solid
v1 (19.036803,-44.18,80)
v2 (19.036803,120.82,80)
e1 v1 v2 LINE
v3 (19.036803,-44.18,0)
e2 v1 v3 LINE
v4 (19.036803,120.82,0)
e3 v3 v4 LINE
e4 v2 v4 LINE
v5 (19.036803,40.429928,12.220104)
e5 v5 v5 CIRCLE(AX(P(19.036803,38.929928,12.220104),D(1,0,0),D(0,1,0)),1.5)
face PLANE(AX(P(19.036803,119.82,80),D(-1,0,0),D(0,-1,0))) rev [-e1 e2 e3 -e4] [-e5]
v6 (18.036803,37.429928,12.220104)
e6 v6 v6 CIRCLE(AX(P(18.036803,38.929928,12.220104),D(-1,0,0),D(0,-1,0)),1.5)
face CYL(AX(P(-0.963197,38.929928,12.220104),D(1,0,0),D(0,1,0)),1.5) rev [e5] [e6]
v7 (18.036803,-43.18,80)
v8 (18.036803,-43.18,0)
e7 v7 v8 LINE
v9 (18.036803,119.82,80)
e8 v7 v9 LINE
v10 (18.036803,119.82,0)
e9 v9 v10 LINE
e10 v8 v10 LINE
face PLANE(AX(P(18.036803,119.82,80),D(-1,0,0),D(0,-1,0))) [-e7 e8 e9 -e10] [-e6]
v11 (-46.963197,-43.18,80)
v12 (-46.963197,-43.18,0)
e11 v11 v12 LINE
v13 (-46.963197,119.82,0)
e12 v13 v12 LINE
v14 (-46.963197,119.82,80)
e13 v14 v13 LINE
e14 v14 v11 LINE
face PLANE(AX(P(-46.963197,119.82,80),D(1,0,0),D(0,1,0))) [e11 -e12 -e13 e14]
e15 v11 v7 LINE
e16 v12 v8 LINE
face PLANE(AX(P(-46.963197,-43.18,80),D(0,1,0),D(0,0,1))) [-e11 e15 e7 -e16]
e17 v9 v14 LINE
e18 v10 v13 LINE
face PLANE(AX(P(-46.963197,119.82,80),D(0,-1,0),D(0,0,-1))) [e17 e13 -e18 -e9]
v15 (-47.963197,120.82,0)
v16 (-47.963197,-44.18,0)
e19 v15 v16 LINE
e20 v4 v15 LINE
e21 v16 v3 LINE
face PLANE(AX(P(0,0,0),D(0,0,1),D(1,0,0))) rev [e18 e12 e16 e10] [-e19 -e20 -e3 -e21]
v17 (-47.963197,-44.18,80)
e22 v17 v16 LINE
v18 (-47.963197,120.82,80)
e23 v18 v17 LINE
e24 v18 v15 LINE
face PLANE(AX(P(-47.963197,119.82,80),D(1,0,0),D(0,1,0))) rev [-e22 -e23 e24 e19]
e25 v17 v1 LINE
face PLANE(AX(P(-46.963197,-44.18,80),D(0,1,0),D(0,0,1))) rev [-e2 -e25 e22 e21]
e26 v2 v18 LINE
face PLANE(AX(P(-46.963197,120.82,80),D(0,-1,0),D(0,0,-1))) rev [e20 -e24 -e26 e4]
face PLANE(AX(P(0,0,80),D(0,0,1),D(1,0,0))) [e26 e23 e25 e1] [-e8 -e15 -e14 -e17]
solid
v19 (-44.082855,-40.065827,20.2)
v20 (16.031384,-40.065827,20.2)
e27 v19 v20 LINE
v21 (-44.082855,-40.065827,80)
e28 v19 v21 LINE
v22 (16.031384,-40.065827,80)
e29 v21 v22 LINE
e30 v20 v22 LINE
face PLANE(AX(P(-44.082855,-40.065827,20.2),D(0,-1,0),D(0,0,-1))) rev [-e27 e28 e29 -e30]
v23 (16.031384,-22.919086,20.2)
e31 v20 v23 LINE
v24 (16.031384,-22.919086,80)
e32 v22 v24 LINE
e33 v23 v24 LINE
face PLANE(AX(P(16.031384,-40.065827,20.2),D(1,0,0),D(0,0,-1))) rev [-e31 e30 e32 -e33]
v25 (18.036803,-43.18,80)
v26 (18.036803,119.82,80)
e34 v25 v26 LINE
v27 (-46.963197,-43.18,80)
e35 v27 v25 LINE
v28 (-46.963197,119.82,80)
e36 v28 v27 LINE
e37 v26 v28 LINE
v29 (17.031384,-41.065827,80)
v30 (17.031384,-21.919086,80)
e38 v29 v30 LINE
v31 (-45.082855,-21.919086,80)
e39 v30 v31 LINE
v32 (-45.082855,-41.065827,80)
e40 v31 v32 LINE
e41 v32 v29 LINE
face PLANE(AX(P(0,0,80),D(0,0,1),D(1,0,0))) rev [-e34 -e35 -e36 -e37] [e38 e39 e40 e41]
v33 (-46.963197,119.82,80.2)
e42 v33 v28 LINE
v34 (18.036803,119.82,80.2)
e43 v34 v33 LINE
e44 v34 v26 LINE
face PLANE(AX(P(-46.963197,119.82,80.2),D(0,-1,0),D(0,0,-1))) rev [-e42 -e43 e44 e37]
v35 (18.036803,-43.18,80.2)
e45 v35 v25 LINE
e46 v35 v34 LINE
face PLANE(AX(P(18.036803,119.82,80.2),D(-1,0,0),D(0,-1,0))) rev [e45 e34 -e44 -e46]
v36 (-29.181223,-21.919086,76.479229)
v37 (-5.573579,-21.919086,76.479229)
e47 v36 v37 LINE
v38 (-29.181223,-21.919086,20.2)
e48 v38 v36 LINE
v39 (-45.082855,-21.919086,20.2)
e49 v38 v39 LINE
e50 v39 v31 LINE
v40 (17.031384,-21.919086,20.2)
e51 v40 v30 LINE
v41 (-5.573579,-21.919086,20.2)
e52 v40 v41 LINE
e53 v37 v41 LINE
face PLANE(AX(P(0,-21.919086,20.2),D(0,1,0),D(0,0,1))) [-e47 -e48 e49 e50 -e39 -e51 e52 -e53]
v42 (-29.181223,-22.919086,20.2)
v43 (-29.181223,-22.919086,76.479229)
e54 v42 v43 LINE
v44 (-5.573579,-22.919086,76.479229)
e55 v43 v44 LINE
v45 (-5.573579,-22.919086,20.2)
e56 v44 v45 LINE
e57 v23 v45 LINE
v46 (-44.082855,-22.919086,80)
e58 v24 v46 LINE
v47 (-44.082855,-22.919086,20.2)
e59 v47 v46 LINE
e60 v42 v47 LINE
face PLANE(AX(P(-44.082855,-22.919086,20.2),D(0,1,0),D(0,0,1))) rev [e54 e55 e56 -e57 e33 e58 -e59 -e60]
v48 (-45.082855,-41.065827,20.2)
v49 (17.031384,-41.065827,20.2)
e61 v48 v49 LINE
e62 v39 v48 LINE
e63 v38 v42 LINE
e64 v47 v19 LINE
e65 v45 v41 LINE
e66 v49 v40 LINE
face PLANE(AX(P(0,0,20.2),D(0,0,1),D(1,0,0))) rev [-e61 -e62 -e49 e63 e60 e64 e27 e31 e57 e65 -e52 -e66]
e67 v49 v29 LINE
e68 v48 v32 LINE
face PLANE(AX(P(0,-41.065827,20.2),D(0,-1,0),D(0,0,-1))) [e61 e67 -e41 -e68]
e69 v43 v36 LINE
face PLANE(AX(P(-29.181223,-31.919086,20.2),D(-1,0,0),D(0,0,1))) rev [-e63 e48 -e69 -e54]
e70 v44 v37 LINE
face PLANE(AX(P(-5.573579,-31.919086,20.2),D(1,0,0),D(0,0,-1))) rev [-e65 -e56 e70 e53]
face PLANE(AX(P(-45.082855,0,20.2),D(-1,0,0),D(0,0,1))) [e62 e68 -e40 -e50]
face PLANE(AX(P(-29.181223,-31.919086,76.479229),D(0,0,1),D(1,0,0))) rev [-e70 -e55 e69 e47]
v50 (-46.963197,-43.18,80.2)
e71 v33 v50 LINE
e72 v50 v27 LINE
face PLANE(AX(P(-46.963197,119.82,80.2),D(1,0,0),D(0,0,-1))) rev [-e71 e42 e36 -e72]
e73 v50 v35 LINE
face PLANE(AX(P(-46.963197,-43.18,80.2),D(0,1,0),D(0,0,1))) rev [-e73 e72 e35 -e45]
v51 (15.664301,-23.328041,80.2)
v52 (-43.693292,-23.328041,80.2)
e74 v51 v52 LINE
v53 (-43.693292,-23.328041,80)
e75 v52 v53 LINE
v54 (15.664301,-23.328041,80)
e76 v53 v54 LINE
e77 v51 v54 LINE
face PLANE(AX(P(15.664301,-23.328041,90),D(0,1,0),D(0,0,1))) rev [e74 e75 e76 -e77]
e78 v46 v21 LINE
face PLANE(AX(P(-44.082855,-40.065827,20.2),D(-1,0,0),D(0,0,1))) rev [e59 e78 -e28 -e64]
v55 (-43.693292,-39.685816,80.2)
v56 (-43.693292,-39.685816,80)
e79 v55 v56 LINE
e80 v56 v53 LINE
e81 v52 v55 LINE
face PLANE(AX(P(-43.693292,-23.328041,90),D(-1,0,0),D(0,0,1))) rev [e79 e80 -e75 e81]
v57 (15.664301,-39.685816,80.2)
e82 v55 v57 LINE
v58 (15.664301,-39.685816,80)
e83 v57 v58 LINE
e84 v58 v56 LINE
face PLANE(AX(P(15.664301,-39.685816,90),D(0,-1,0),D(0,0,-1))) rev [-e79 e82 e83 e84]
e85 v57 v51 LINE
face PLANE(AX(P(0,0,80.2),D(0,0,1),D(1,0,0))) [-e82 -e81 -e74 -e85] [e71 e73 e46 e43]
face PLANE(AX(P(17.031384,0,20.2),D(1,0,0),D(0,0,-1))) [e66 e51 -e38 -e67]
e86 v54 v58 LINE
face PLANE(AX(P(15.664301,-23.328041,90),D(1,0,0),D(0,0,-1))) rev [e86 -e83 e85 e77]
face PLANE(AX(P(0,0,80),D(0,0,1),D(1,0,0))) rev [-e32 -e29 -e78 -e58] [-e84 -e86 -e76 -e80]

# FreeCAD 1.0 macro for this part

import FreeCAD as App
import Part
import Sketcher
from FreeCAD import Vector

doc = App.newDocument("Part")
body = doc.addObject("PartDesign::Body", "Body")

# Sketch on XY plane
sketch1 = body.newObject("Sketcher::SketchObject", "Sketch")
sketch1.AttachmentSupport = (doc.getObject("XY_Plane"), [""])
sketch1.MapMode = "FlatFace"
sketch1.addGeometry(Part.LineSegment(Vector(-48, 121, 0), Vector(-48, -44, 0)), False)
sketch1.addGeometry(Part.LineSegment(Vector(-48, -44, 0), Vector(19, -44, 0)), False)
sketch1.addGeometry(Part.LineSegment(Vector(19, -44, 0), Vector(19, 121, 0)), False)
sketch1.addGeometry(Part.LineSegment(Vector(19, 121, 0), Vector(-48, 121, 0)), False)
sketch1.addGeometry(Part.LineSegment(Vector(18, -43, 0), Vector(-47, -43, 0)), False)
sketch1.addGeometry(Part.LineSegment(Vector(-47, -43, 0), Vector(-47, 120, 0)), False)
sketch1.addGeometry(Part.LineSegment(Vector(-47, 120, 0), Vector(18, 120, 0)), False)
sketch1.addGeometry(Part.LineSegment(Vector(18, 120, 0), Vector(18, -43, 0)), False)
sketch1.addConstraint(Sketcher.Constraint("Coincident", 0, 2, 1, 1))
sketch1.addConstraint(Sketcher.Constraint("Coincident", 1, 2, 2, 1))
sketch1.addConstraint(Sketcher.Constraint("Coincident", 2, 2, 3, 1))
sketch1.addConstraint(Sketcher.Constraint("Coincident", 3, 2, 0, 1))
sketch1.addConstraint(Sketcher.Constraint("Coincident", 4, 2, 5, 1))
sketch1.addConstraint(Sketcher.Constraint("Coincident", 5, 2, 6, 1))
sketch1.addConstraint(Sketcher.Constraint("Coincident", 6, 2, 7, 1))
sketch1.addConstraint(Sketcher.Constraint("Coincident", 7, 2, 4, 1))
sketch1.addConstraint(Sketcher.Constraint("Vertical", 0))
sketch1.addConstraint(Sketcher.Constraint("Horizontal", 1))
sketch1.addConstraint(Sketcher.Constraint("Vertical", 2))
sketch1.addConstraint(Sketcher.Constraint("Horizontal", 3))
sketch1.addConstraint(Sketcher.Constraint("Horizontal", 4))
sketch1.addConstraint(Sketcher.Constraint("Vertical", 5))
sketch1.addConstraint(Sketcher.Constraint("Horizontal", 6))
sketch1.addConstraint(Sketcher.Constraint("Vertical", 7))
sketch1.addConstraint(Sketcher.Constraint("DistanceX", 1, 1, 1, 2, 67.0))
sketch1.addConstraint(Sketcher.Constraint("DistanceX", 4, 2, 4, 1, 65.0))
sketch1.addConstraint(Sketcher.Constraint("DistanceY", 0, 2, 0, 1, 165.0))
sketch1.addConstraint(Sketcher.Constraint("DistanceY", 5, 1, 5, 2, 163.0))
sketch1.addConstraint(Sketcher.Constraint("DistanceX", 0, 2, 4, 2, 1.0))
sketch1.addConstraint(Sketcher.Constraint("DistanceY", 0, 2, 4, 2, 1.0))
sketch1.addConstraint(Sketcher.Constraint("DistanceY", 0, 2, -1, 1, 44.18))
sketch1.addConstraint(Sketcher.Constraint("DistanceX", 0, 2, -1, 1, 47.963197))
pad1 = body.newObject("PartDesign::Pad", "Pad")
pad1.Profile = sketch1
pad1.Length = 80

# Sketch on YZ plane
sketch2 = body.newObject("Sketcher::SketchObject", "Sketch001")
sketch2.AttachmentSupport = (doc.getObject("YZ_Plane"), [""])
sketch2.MapMode = "FlatFace"
sketch2.AttachmentOffset = App.Placement(Vector(0, 0, 19.036803), App.Rotation())
sketch2.addGeometry(Part.Circle(Vector(38.9, 12.2, 0), Vector(0, 0, 1), 1.5), False)
sketch2.addConstraint(Sketcher.Constraint("Diameter", 0, 3.0))
sketch2.addConstraint(Sketcher.Constraint("DistanceX", -1, 1, 0, 3, 38.929928))
sketch2.addConstraint(Sketcher.Constraint("DistanceY", -1, 1, 0, 3, 12.220104))
pocket1 = body.newObject("PartDesign::Pocket", "Pocket")
pocket1.Profile = sketch2
pocket1.Length = 20
body2 = doc.addObject("PartDesign::Body", "Body001")

# Sketch on XY plane
sketch3 = body2.newObject("Sketcher::SketchObject", "Sketch002")
sketch3.AttachmentSupport = (doc.getObject("XY_Plane001"), [""])
sketch3.MapMode = "FlatFace"
sketch3.AttachmentOffset = App.Placement(Vector(0, 0, 80), App.Rotation())
sketch3.addGeometry(Part.LineSegment(Vector(-47, 120, 0), Vector(-47, -43, 0)), False)
sketch3.addGeometry(Part.LineSegment(Vector(-47, -43, 0), Vector(18, -43, 0)), False)
sketch3.addGeometry(Part.LineSegment(Vector(18, -43, 0), Vector(18, 120, 0)), False)
sketch3.addGeometry(Part.LineSegment(Vector(18, 120, 0), Vector(-47, 120, 0)), False)
sketch3.addConstraint(Sketcher.Constraint("Coincident", 0, 2, 1, 1))
sketch3.addConstraint(Sketcher.Constraint("Coincident", 1, 2, 2, 1))
sketch3.addConstraint(Sketcher.Constraint("Coincident", 2, 2, 3, 1))
sketch3.addConstraint(Sketcher.Constraint("Coincident", 3, 2, 0, 1))
sketch3.addConstraint(Sketcher.Constraint("Vertical", 0))
sketch3.addConstraint(Sketcher.Constraint("Horizontal", 1))
sketch3.addConstraint(Sketcher.Constraint("Vertical", 2))
sketch3.addConstraint(Sketcher.Constraint("Horizontal", 3))
sketch3.addConstraint(Sketcher.Constraint("DistanceX", 1, 1, 1, 2, 65.0))
sketch3.addConstraint(Sketcher.Constraint("DistanceY", 0, 2, 0, 1, 163.0))
sketch3.addConstraint(Sketcher.Constraint("DistanceY", 0, 2, -1, 1, 43.18))
sketch3.addConstraint(Sketcher.Constraint("DistanceX", 0, 2, -1, 1, 46.963197))
pad2 = body2.newObject("PartDesign::Pad", "Pad001")
pad2.Profile = sketch3
pad2.Length = 0.2

# Sketch on XY plane
sketch4 = body2.newObject("Sketcher::SketchObject", "Sketch003")
sketch4.AttachmentSupport = (doc.getObject("XY_Plane001"), [""])
sketch4.MapMode = "FlatFace"
sketch4.AttachmentOffset = App.Placement(Vector(0, 0, 80.2), App.Rotation())
sketch4.addGeometry(Part.LineSegment(Vector(-45, -22, 0), Vector(-45, -41, 0)), False)
sketch4.addGeometry(Part.LineSegment(Vector(-45, -41, 0), Vector(17, -41, 0)), False)
sketch4.addGeometry(Part.LineSegment(Vector(17, -41, 0), Vector(17, -22, 0)), False)
sketch4.addGeometry(Part.LineSegment(Vector(17, -22, 0), Vector(-45, -22, 0)), False)
sketch4.addGeometry(Part.LineSegment(Vector(16, -40, 0), Vector(-44, -40, 0)), False)
sketch4.addGeometry(Part.LineSegment(Vector(-44, -40, 0), Vector(-44, -23, 0)), False)
sketch4.addGeometry(Part.LineSegment(Vector(-44, -23, 0), Vector(16, -23, 0)), False)
sketch4.addGeometry(Part.LineSegment(Vector(16, -23, 0), Vector(16, -40, 0)), False)
sketch4.addConstraint(Sketcher.Constraint("Coincident", 0, 2, 1, 1))
sketch4.addConstraint(Sketcher.Constraint("Coincident", 1, 2, 2, 1))
sketch4.addConstraint(Sketcher.Constraint("Coincident", 2, 2, 3, 1))
sketch4.addConstraint(Sketcher.Constraint("Coincident", 3, 2, 0, 1))
sketch4.addConstraint(Sketcher.Constraint("Coincident", 4, 2, 5, 1))
sketch4.addConstraint(Sketcher.Constraint("Coincident", 5, 2, 6, 1))
sketch4.addConstraint(Sketcher.Constraint("Coincident", 6, 2, 7, 1))
sketch4.addConstraint(Sketcher.Constraint("Coincident", 7, 2, 4, 1))
sketch4.addConstraint(Sketcher.Constraint("Vertical", 0))
sketch4.addConstraint(Sketcher.Constraint("Horizontal", 1))
sketch4.addConstraint(Sketcher.Constraint("Vertical", 2))
sketch4.addConstraint(Sketcher.Constraint("Horizontal", 3))
sketch4.addConstraint(Sketcher.Constraint("Horizontal", 4))
sketch4.addConstraint(Sketcher.Constraint("Vertical", 5))
sketch4.addConstraint(Sketcher.Constraint("Horizontal", 6))
sketch4.addConstraint(Sketcher.Constraint("Vertical", 7))
sketch4.addConstraint(Sketcher.Constraint("DistanceX", 0, 2, 4, 2, 1.0))
sketch4.addConstraint(Sketcher.Constraint("DistanceY", 0, 2, 4, 2, 1.0))
sketch4.addConstraint(Sketcher.Constraint("DistanceY", 5, 2, 3, 2, 1.0))
sketch4.addConstraint(Sketcher.Constraint("DistanceX", 6, 2, 2, 2, 1.0))
sketch4.addConstraint(Sketcher.Constraint("DistanceX", 1, 1, 1, 2, 62.114238))
sketch4.addConstraint(Sketcher.Constraint("DistanceY", 0, 2, 0, 1, 19.14674))
sketch4.addConstraint(Sketcher.Constraint("DistanceX", 0, 2, -1, 1, 45.082855))
sketch4.addConstraint(Sketcher.Constraint("DistanceY", 0, 2, -1, 1, 41.065827))
pad3 = body2.newObject("PartDesign::Pad", "Pad002")
pad3.Profile = sketch4
pad3.Length = 60
pad3.Reversed = True

# Sketch on XZ plane
sketch5 = body2.newObject("Sketcher::SketchObject", "Sketch004")
sketch5.AttachmentSupport = (doc.getObject("XZ_Plane001"), [""])
sketch5.MapMode = "FlatFace"
sketch5.AttachmentOffset = App.Placement(Vector(0, 0, 21.919086), App.Rotation())
sketch5.addGeometry(Part.LineSegment(Vector(-29, 20, 0), Vector(-29, 76, 0)), False)
sketch5.addGeometry(Part.LineSegment(Vector(-29, 76, 0), Vector(-6, 76, 0)), False)
sketch5.addGeometry(Part.LineSegment(Vector(-6, 76, 0), Vector(-6, 20, 0)), False)
sketch5.addGeometry(Part.LineSegment(Vector(-6, 20, 0), Vector(-29, 20, 0)), False)
sketch5.addConstraint(Sketcher.Constraint("Coincident", 0, 2, 1, 1))
sketch5.addConstraint(Sketcher.Constraint("Coincident", 1, 2, 2, 1))
sketch5.addConstraint(Sketcher.Constraint("Coincident", 2, 2, 3, 1))
sketch5.addConstraint(Sketcher.Constraint("Coincident", 3, 2, 0, 1))
sketch5.addConstraint(Sketcher.Constraint("Vertical", 0))
sketch5.addConstraint(Sketcher.Constraint("Horizontal", 1))
sketch5.addConstraint(Sketcher.Constraint("Vertical", 2))
sketch5.addConstraint(Sketcher.Constraint("Horizontal", 3))
sketch5.addConstraint(Sketcher.Constraint("DistanceY", -1, 1, 2, 2, 20.2))
sketch5.addConstraint(Sketcher.Constraint("DistanceY", 0, 1, 0, 2, 56.279229))
sketch5.addConstraint(Sketcher.Constraint("DistanceX", 1, 1, 1, 2, 23.607643))
sketch5.addConstraint(Sketcher.Constraint("DistanceX", 1, 2, -1, 1, 5.573579))
pocket2 = body2.newObject("PartDesign::Pocket", "Pocket001")
pocket2.Profile = sketch5
pocket2.Length = 10
pocket2.Reversed = True

# Sketch on XY plane
sketch6 = body2.newObject("Sketcher::SketchObject", "Sketch005")
sketch6.AttachmentSupport = (doc.getObject("XY_Plane001"), [""])
sketch6.MapMode = "FlatFace"
sketch6.AttachmentOffset = App.Placement(Vector(0, 0, 80), App.Rotation())
sketch6.addGeometry(Part.LineSegment(Vector(16, -23, 0), Vector(16, -40, 0)), False)
sketch6.addGeometry(Part.LineSegment(Vector(16, -40, 0), Vector(-44, -40, 0)), False)
sketch6.addGeometry(Part.LineSegment(Vector(-44, -40, 0), Vector(-44, -23, 0)), False)
sketch6.addGeometry(Part.LineSegment(Vector(-44, -23, 0), Vector(16, -23, 0)), False)
sketch6.addConstraint(Sketcher.Constraint("Coincident", 0, 2, 1, 1))
sketch6.addConstraint(Sketcher.Constraint("Coincident", 1, 2, 2, 1))
sketch6.addConstraint(Sketcher.Constraint("Coincident", 2, 2, 3, 1))
sketch6.addConstraint(Sketcher.Constraint("Coincident", 3, 2, 0, 1))
sketch6.addConstraint(Sketcher.Constraint("Vertical", 0))
sketch6.addConstraint(Sketcher.Constraint("Horizontal", 1))
sketch6.addConstraint(Sketcher.Constraint("Vertical", 2))
sketch6.addConstraint(Sketcher.Constraint("Horizontal", 3))
sketch6.addConstraint(Sketcher.Constraint("DistanceX", -1, 1, 0, 2, 15.664301))
sketch6.addConstraint(Sketcher.Constraint("DistanceX", 1, 2, 1, 1, 59.357592))
sketch6.addConstraint(Sketcher.Constraint("DistanceY", 0, 2, 0, 1, 16.357775))
sketch6.addConstraint(Sketcher.Constraint("DistanceY", 2, 2, -1, 1, 23.328041))
pocket3 = body2.newObject("PartDesign::Pocket", "Pocket002")
pocket3.Profile = sketch6
pocket3.Length = 10
pocket3.Reversed = True

doc.recompute()
